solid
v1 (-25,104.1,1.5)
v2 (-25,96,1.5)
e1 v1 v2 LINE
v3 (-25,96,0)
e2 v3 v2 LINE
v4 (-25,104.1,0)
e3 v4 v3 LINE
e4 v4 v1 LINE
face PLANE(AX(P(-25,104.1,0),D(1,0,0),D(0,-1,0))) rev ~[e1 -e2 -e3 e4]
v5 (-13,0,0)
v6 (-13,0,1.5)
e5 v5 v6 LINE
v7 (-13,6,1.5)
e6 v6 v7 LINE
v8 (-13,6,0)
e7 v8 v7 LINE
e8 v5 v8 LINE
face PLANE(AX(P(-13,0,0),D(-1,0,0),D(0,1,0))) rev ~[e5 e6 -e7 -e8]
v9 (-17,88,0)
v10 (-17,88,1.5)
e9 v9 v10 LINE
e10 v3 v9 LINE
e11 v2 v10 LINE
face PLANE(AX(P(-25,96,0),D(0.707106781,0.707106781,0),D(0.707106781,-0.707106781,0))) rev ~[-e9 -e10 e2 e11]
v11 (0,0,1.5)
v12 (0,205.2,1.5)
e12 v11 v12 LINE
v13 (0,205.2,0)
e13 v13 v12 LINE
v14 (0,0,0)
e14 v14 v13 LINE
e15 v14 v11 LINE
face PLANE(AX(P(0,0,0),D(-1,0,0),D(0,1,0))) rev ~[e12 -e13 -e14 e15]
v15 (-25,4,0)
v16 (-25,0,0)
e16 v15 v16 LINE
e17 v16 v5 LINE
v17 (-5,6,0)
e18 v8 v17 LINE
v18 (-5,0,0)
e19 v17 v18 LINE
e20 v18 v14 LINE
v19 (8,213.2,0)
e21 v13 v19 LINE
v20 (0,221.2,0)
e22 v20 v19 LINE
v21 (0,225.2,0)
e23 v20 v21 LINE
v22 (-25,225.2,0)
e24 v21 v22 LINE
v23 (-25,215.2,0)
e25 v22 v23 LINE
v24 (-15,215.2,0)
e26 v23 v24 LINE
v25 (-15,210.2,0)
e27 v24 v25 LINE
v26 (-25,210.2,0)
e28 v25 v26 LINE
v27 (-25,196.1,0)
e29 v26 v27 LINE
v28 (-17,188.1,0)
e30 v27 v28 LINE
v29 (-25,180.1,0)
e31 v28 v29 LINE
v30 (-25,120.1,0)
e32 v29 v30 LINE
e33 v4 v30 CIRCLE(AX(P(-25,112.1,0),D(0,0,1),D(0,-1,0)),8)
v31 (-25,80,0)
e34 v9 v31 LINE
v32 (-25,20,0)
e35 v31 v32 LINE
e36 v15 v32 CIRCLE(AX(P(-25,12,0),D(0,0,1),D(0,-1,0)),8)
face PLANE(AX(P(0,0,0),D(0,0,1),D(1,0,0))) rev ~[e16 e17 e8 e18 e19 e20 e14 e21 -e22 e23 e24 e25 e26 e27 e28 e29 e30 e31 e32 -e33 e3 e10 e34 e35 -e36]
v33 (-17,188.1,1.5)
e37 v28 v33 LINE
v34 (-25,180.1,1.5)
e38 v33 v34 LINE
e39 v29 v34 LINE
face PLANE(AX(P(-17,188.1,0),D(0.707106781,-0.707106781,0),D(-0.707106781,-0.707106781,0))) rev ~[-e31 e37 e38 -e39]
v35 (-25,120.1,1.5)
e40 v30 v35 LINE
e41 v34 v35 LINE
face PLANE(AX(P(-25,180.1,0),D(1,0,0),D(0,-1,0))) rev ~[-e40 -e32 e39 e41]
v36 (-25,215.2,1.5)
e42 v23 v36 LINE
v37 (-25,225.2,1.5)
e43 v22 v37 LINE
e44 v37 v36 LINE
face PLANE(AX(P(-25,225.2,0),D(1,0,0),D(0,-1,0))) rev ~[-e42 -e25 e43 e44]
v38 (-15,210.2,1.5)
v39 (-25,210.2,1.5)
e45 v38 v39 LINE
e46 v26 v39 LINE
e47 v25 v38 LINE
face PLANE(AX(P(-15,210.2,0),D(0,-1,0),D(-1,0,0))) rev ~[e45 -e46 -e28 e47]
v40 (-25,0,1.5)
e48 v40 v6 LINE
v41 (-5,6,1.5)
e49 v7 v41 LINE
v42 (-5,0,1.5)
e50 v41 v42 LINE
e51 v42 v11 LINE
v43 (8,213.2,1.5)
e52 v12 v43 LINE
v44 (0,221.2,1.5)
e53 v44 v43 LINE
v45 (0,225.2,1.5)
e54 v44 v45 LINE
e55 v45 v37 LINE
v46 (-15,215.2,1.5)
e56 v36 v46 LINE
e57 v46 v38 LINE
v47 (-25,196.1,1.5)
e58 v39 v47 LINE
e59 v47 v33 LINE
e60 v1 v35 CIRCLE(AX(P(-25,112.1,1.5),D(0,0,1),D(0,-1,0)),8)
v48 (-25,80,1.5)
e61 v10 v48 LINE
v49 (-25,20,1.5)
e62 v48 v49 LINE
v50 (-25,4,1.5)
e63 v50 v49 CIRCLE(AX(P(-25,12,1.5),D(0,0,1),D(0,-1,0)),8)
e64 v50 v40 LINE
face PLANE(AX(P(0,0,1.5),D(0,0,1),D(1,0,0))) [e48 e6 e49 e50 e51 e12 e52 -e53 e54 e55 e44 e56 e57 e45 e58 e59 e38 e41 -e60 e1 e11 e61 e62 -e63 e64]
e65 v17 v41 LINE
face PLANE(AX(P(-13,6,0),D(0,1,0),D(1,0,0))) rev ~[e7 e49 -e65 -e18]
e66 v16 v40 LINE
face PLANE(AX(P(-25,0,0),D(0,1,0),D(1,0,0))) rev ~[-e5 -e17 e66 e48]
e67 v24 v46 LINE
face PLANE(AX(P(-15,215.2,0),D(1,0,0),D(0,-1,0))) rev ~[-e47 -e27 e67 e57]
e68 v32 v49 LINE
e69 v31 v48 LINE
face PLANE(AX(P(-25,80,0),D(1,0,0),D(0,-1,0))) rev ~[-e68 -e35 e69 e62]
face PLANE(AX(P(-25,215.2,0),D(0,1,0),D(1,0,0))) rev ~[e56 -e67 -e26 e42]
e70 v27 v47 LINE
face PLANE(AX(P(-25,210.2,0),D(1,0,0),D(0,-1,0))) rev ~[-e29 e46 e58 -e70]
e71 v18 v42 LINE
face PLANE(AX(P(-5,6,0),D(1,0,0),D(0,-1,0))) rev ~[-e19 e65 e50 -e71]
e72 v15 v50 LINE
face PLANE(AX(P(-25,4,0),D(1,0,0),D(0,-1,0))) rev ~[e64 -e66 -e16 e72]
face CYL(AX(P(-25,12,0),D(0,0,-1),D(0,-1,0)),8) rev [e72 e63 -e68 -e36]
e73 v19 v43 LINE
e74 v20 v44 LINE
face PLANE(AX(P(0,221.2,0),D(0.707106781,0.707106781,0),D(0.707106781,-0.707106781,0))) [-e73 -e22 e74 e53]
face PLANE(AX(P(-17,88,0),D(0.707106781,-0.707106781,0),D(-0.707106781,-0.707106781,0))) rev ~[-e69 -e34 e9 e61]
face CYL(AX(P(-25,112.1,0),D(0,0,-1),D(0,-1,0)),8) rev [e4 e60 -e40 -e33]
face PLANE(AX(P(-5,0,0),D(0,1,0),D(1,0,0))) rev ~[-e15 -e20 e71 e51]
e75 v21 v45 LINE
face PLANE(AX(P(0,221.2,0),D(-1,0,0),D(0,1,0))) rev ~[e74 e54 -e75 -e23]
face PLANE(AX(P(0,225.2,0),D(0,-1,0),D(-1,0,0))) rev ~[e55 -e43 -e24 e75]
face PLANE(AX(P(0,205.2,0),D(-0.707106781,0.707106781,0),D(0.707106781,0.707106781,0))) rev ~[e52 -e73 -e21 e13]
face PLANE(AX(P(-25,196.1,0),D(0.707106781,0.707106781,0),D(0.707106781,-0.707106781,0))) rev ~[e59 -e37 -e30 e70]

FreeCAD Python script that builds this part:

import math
import FreeCAD as App
import Part
import Sketcher
Q = App.Units.Quantity

doc = App.newDocument("Part")
params = doc.addObject("Spreadsheet::Sheet", "Params")
for row, (alias, value) in enumerate([
    ("sketch1_radius", "8 mm"),
    ("sketch1_width", "25 mm"),
    ("sketch1_width2", "10 mm"),
    ("sketch1_width3", "12 mm"),
    ("sketch1_width4", "8 mm"),
    ("pad1_length", "1.5 mm"),
], start=1):
    params.set(f"A{row}", alias)
    params.set(f"B{row}", "=" + value)
    params.setAlias(f"B{row}", alias)

body = doc.addObject("PartDesign::Body", "Body")

sketch1 = body.newObject("Sketcher::SketchObject", "Sketch")
sketch1.AttachmentSupport = (doc.getObject("XY_Plane"), [""])
sketch1.MapMode = "FlatFace"
sketch1.addGeometry(Part.LineSegment(App.Vector(8, 213.2, 0), App.Vector(0, 221.2, 0)), False)
sketch1.addGeometry(Part.LineSegment(App.Vector(0, 221.2, 0), App.Vector(0, 225.2, 0)), False)
sketch1.addGeometry(Part.LineSegment(App.Vector(0, 225.2, 0), App.Vector(-25, 225.2, 0)), False)
sketch1.addGeometry(Part.LineSegment(App.Vector(-25, 225.2, 0), App.Vector(-25, 215.2, 0)), False)
sketch1.addGeometry(Part.LineSegment(App.Vector(-25, 215.2, 0), App.Vector(-15, 215.2, 0)), False)
sketch1.addGeometry(Part.LineSegment(App.Vector(-15, 215.2, 0), App.Vector(-15, 210.2, 0)), False)
sketch1.addGeometry(Part.LineSegment(App.Vector(-15, 210.2, 0), App.Vector(-25, 210.2, 0)), False)
sketch1.addGeometry(Part.LineSegment(App.Vector(-25, 210.2, 0), App.Vector(-25, 196.1, 0)), False)
sketch1.addGeometry(Part.LineSegment(App.Vector(-25, 196.1, 0), App.Vector(-17, 188.1, 0)), False)
sketch1.addGeometry(Part.LineSegment(App.Vector(-17, 188.1, 0), App.Vector(-25, 180.1, 0)), False)
sketch1.addGeometry(Part.LineSegment(App.Vector(-25, 180.1, 0), App.Vector(-25, 120.1, 0)), False)
sketch1.addGeometry(Part.ArcOfCircle(Part.Circle(App.Vector(-25, 112.1, 0), App.Vector(0, 0, 1), 8), math.radians(-90), math.radians(90)), False)
sketch1.addGeometry(Part.LineSegment(App.Vector(-25, 104.1, 0), App.Vector(-25, 96, 0)), False)
sketch1.addGeometry(Part.LineSegment(App.Vector(-25, 96, 0), App.Vector(-17, 88, 0)), False)
sketch1.addGeometry(Part.LineSegment(App.Vector(-17, 88, 0), App.Vector(-25, 80, 0)), False)
sketch1.addGeometry(Part.LineSegment(App.Vector(-25, 80, 0), App.Vector(-25, 20, 0)), False)
sketch1.addGeometry(Part.ArcOfCircle(Part.Circle(App.Vector(-25, 12, 0), App.Vector(0, 0, 1), 8), math.radians(-90), math.radians(90)), False)
sketch1.addGeometry(Part.LineSegment(App.Vector(-25, 4, 0), App.Vector(-25, 0, 0)), False)
sketch1.addGeometry(Part.LineSegment(App.Vector(-25, 0, 0), App.Vector(-13, 0, 0)), False)
sketch1.addGeometry(Part.LineSegment(App.Vector(-13, 0, 0), App.Vector(-13, 6, 0)), False)
sketch1.addGeometry(Part.LineSegment(App.Vector(-13, 6, 0), App.Vector(-5, 6, 0)), False)
sketch1.addGeometry(Part.LineSegment(App.Vector(-5, 6, 0), App.Vector(-5, 0, 0)), False)
sketch1.addGeometry(Part.LineSegment(App.Vector(-5, 0, 0), App.Vector(0, 0, 0)), False)
sketch1.addGeometry(Part.LineSegment(App.Vector(0, 0, 0), App.Vector(0, 205.2, 0)), False)
sketch1.addGeometry(Part.LineSegment(App.Vector(0, 205.2, 0), App.Vector(8, 213.2, 0)), False)
sketch1.addConstraint(Sketcher.Constraint("Coincident", 0, 2, 1, 1))
sketch1.addConstraint(Sketcher.Constraint("Coincident", 1, 2, 2, 1))
sketch1.addConstraint(Sketcher.Constraint("Coincident", 2, 2, 3, 1))
sketch1.addConstraint(Sketcher.Constraint("Coincident", 3, 2, 4, 1))
sketch1.addConstraint(Sketcher.Constraint("Coincident", 4, 2, 5, 1))
sketch1.addConstraint(Sketcher.Constraint("Coincident", 5, 2, 6, 1))
sketch1.addConstraint(Sketcher.Constraint("Coincident", 6, 2, 7, 1))
sketch1.addConstraint(Sketcher.Constraint("Coincident", 7, 2, 8, 1))
sketch1.addConstraint(Sketcher.Constraint("Coincident", 8, 2, 9, 1))
sketch1.addConstraint(Sketcher.Constraint("Coincident", 9, 2, 10, 1))
sketch1.addConstraint(Sketcher.Constraint("Coincident", 10, 2, 11, 2))
sketch1.addConstraint(Sketcher.Constraint("Coincident", 11, 1, 12, 1))
sketch1.addConstraint(Sketcher.Constraint("Coincident", 12, 2, 13, 1))
sketch1.addConstraint(Sketcher.Constraint("Coincident", 13, 2, 14, 1))
sketch1.addConstraint(Sketcher.Constraint("Coincident", 14, 2, 15, 1))
sketch1.addConstraint(Sketcher.Constraint("Coincident", 15, 2, 16, 2))
sketch1.addConstraint(Sketcher.Constraint("Coincident", 16, 1, 17, 1))
sketch1.addConstraint(Sketcher.Constraint("Coincident", 17, 2, 18, 1))
sketch1.addConstraint(Sketcher.Constraint("Coincident", 18, 2, 19, 1))
sketch1.addConstraint(Sketcher.Constraint("Coincident", 19, 2, 20, 1))
sketch1.addConstraint(Sketcher.Constraint("Coincident", 20, 2, 21, 1))
sketch1.addConstraint(Sketcher.Constraint("Coincident", 21, 2, 22, 1))
sketch1.addConstraint(Sketcher.Constraint("Coincident", 22, 2, 23, 1))
sketch1.addConstraint(Sketcher.Constraint("Coincident", 23, 2, 24, 1))
sketch1.addConstraint(Sketcher.Constraint("Coincident", 24, 2, 0, 1))
sketch1.addConstraint(Sketcher.Constraint("Vertical", 1))
sketch1.addConstraint(Sketcher.Constraint("Horizontal", 2))
sketch1.addConstraint(Sketcher.Constraint("Vertical", 3))
sketch1.addConstraint(Sketcher.Constraint("Horizontal", 4))
sketch1.addConstraint(Sketcher.Constraint("Vertical", 5))
sketch1.addConstraint(Sketcher.Constraint("Horizontal", 6))
sketch1.addConstraint(Sketcher.Constraint("Vertical", 7))
sketch1.addConstraint(Sketcher.Constraint("Vertical", 10))
sketch1.addConstraint(Sketcher.Constraint("Vertical", 12))
sketch1.addConstraint(Sketcher.Constraint("Vertical", 15))
sketch1.addConstraint(Sketcher.Constraint("Vertical", 17))
sketch1.addConstraint(Sketcher.Constraint("Horizontal", 18))
sketch1.addConstraint(Sketcher.Constraint("Vertical", 19))
sketch1.addConstraint(Sketcher.Constraint("Horizontal", 20))
sketch1.addConstraint(Sketcher.Constraint("Vertical", 21))
sketch1.addConstraint(Sketcher.Constraint("Horizontal", 22))
sketch1.addConstraint(Sketcher.Constraint("Vertical", 23))
sketch1.addConstraint(Sketcher.Constraint("Coincident", 22, 2, -1, 1))
sketch1.addConstraint(Sketcher.Constraint("Equal", 11, 16))
sketch1.addConstraint(Sketcher.Constraint("PointOnObject", 0, 2, -2))
sketch1.addConstraint(Sketcher.Constraint("PointOnObject", 17, 2, -1))
sketch1.addConstraint(Sketcher.Constraint("Parallel", 0, 8))
sketch1.addConstraint(Sketcher.Constraint("Perpendicular", 8, 9))
sketch1.addConstraint(Sketcher.Constraint("Perpendicular", 9, 13))
sketch1.addConstraint(Sketcher.Constraint("Perpendicular", 13, 14))
sketch1.addConstraint(Sketcher.Constraint("Parallel", 14, 24))
sketch1.addConstraint(Sketcher.Constraint("Vertical", 11, 3, 16, 3))
sketch1.addConstraint(Sketcher.Constraint("Vertical", 16, 3, 2, 2))
sketch1.addConstraint(Sketcher.Constraint("Vertical", 3, 2, 6, 2))
sketch1.addConstraint(Sketcher.Constraint("Vertical", 7, 2, 9, 2))
sketch1.addConstraint(Sketcher.Constraint("Vertical", 10, 2, 11, 1))
sketch1.addConstraint(Sketcher.Constraint("Vertical", 8, 2, 13, 2))
sketch1.addConstraint(Sketcher.Constraint("Vertical", 12, 2, 14, 2))
sketch1.addConstraint(Sketcher.Constraint("Vertical", 15, 2, 16, 1))
sketch1.addConstraint(Sketcher.Constraint("Equal", 6, 3))
sketch1.addConstraint(Sketcher.Constraint("Equal", 22, 5))
sketch1.addConstraint(Sketcher.Constraint("Equal", 10, 15))
sketch1.addConstraint(Sketcher.Constraint("Equal", 1, 17))
sketch1.addConstraint(Sketcher.Constraint("Equal", 0, 8))
sketch1.addConstraint(Sketcher.Constraint("Equal", 8, 9))
sketch1.addConstraint(Sketcher.Constraint("Radius", 11, Q("8 mm")))
sketch1.addConstraint(Sketcher.Constraint("DistanceX", 2, 2, 2, 1, Q("25 mm")))
sketch1.addConstraint(Sketcher.Constraint("DistanceX", 4, 1, 4, 2, Q("10 mm")))
sketch1.addConstraint(Sketcher.Constraint("DistanceX", 18, 1, 18, 2, Q("12 mm")))
sketch1.addConstraint(Sketcher.Constraint("DistanceX", 20, 1, 20, 2, Q("8 mm")))
sketch1.addConstraint(Sketcher.Constraint("DistanceY", 1, 1, 1, 2, Q("4 mm")))
sketch1.addConstraint(Sketcher.Constraint("DistanceY", 19, 1, 19, 2, Q("6 mm")))
sketch1.addConstraint(Sketcher.Constraint("DistanceX", -1, 1, 24, 2, Q("8 mm")))
sketch1.addConstraint(Sketcher.Constraint("DistanceY", 10, 2, 7, 2, Q("76 mm")))
sketch1.addConstraint(Sketcher.Constraint("DistanceY", -1, 1, 1, 2, Q("225.2 mm")))
sketch1.addConstraint(Sketcher.Constraint("DistanceY", 12, 2, 10, 2, Q("24.1 mm")))
sketch1.setExpression("Constraints[65]", "Params.sketch1_radius")
sketch1.setExpression("Constraints[66]", "Params.sketch1_width")
sketch1.setExpression("Constraints[67]", "Params.sketch1_width2")
sketch1.setExpression("Constraints[68]", "Params.sketch1_width3")
sketch1.setExpression("Constraints[69]", "Params.sketch1_width4")
pad1 = body.newObject("PartDesign::Pad", "Pad")
pad1.Profile = sketch1
pad1.setExpression("Length", "Params.pad1_length")

doc.recompute()
